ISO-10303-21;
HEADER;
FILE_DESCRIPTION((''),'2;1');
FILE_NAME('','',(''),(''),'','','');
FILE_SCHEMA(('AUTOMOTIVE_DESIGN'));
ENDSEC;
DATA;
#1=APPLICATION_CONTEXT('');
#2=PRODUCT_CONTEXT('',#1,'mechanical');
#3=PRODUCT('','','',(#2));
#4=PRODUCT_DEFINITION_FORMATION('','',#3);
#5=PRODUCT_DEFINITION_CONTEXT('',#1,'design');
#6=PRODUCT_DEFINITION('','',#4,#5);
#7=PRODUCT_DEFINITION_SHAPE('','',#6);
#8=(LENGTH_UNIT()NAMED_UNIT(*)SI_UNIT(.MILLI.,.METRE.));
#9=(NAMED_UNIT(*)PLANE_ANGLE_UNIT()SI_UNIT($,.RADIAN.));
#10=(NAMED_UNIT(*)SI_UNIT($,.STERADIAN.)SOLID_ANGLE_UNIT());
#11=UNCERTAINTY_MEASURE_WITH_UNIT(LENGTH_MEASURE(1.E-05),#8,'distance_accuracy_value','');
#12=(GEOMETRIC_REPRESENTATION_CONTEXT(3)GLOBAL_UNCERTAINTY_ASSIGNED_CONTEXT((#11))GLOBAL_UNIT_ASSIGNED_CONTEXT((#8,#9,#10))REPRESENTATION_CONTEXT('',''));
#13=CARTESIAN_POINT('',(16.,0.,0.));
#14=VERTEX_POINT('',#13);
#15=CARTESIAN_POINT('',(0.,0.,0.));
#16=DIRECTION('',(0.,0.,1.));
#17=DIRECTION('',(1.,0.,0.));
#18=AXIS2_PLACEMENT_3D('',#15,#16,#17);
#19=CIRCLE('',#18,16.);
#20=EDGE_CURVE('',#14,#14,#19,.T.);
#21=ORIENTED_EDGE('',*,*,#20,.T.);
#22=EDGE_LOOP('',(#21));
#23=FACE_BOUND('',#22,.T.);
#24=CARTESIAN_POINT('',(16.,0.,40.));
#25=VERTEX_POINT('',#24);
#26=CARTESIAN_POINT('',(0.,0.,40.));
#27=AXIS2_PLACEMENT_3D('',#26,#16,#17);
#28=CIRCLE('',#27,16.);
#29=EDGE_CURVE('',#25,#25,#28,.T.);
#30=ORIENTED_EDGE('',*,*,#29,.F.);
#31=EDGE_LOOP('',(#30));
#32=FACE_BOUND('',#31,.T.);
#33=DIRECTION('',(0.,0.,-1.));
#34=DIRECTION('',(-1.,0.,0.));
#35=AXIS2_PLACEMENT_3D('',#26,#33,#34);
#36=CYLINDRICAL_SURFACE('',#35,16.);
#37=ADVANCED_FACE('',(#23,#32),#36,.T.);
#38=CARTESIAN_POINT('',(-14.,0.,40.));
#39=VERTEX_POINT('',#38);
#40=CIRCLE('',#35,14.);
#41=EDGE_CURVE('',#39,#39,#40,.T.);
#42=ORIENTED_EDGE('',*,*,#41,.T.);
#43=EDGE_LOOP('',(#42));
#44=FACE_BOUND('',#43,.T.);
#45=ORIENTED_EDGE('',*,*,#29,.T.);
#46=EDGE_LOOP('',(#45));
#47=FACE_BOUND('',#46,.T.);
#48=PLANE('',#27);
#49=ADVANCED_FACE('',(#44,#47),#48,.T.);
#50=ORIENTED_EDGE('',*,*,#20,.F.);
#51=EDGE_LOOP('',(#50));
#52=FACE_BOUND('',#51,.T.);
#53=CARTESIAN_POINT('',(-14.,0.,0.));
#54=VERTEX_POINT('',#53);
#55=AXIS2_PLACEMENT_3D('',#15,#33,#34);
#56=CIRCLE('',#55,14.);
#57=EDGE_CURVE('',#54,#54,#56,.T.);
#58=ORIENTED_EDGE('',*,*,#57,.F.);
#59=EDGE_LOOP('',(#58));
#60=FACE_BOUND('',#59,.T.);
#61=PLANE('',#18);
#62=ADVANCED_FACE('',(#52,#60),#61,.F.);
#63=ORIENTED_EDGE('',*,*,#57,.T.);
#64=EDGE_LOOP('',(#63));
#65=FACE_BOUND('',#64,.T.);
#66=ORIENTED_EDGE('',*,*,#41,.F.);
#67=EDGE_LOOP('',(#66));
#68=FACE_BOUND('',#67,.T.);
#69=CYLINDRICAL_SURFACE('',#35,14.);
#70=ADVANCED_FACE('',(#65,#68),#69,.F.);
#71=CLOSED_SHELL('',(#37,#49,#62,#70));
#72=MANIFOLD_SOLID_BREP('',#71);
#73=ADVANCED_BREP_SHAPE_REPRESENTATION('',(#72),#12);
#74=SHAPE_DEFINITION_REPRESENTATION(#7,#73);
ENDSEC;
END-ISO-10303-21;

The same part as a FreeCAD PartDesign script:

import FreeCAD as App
import Part
import Sketcher

V = App.Vector
Q = App.Units.Quantity

doc = App.newDocument("Part")
body = doc.addObject("PartDesign::Body", "Body")

# Sketch on XY plane
sketch1 = body.newObject("Sketcher::SketchObject", "Sketch")
sketch1.AttachmentSupport = (doc.getObject("XY_Plane"), [""])
sketch1.MapMode = "FlatFace"
sketch1.addGeometry(Part.Circle(V(0, 0, 0), V(0, 0, 1), 16), False)
sketch1.addConstraint([
    Sketcher.Constraint("Coincident", 0, 3, -1, 1),
    Sketcher.Constraint("Diameter", 0, Q("32 mm")),
])
pad1 = body.newObject("PartDesign::Pad", "Pad")
pad1.Profile = sketch1
pad1.Length = 40

# Sketch on XY plane
sketch2 = body.newObject("Sketcher::SketchObject", "Sketch001")
sketch2.AttachmentSupport = (doc.getObject("XY_Plane"), [""])
sketch2.MapMode = "FlatFace"
sketch2.addGeometry(Part.Circle(V(0, 0, 0), V(0, 0, 1), 14), False)
sketch2.addConstraint([
    Sketcher.Constraint("Coincident", 0, 3, -1, 1),
    Sketcher.Constraint("Diameter", 0, Q("28 mm")),
])
pocket1 = body.newObject("PartDesign::Pocket", "Pocket")
pocket1.Profile = sketch2
pocket1.Type = "ThroughAll"
pocket1.Reversed = True

doc.recompute()
